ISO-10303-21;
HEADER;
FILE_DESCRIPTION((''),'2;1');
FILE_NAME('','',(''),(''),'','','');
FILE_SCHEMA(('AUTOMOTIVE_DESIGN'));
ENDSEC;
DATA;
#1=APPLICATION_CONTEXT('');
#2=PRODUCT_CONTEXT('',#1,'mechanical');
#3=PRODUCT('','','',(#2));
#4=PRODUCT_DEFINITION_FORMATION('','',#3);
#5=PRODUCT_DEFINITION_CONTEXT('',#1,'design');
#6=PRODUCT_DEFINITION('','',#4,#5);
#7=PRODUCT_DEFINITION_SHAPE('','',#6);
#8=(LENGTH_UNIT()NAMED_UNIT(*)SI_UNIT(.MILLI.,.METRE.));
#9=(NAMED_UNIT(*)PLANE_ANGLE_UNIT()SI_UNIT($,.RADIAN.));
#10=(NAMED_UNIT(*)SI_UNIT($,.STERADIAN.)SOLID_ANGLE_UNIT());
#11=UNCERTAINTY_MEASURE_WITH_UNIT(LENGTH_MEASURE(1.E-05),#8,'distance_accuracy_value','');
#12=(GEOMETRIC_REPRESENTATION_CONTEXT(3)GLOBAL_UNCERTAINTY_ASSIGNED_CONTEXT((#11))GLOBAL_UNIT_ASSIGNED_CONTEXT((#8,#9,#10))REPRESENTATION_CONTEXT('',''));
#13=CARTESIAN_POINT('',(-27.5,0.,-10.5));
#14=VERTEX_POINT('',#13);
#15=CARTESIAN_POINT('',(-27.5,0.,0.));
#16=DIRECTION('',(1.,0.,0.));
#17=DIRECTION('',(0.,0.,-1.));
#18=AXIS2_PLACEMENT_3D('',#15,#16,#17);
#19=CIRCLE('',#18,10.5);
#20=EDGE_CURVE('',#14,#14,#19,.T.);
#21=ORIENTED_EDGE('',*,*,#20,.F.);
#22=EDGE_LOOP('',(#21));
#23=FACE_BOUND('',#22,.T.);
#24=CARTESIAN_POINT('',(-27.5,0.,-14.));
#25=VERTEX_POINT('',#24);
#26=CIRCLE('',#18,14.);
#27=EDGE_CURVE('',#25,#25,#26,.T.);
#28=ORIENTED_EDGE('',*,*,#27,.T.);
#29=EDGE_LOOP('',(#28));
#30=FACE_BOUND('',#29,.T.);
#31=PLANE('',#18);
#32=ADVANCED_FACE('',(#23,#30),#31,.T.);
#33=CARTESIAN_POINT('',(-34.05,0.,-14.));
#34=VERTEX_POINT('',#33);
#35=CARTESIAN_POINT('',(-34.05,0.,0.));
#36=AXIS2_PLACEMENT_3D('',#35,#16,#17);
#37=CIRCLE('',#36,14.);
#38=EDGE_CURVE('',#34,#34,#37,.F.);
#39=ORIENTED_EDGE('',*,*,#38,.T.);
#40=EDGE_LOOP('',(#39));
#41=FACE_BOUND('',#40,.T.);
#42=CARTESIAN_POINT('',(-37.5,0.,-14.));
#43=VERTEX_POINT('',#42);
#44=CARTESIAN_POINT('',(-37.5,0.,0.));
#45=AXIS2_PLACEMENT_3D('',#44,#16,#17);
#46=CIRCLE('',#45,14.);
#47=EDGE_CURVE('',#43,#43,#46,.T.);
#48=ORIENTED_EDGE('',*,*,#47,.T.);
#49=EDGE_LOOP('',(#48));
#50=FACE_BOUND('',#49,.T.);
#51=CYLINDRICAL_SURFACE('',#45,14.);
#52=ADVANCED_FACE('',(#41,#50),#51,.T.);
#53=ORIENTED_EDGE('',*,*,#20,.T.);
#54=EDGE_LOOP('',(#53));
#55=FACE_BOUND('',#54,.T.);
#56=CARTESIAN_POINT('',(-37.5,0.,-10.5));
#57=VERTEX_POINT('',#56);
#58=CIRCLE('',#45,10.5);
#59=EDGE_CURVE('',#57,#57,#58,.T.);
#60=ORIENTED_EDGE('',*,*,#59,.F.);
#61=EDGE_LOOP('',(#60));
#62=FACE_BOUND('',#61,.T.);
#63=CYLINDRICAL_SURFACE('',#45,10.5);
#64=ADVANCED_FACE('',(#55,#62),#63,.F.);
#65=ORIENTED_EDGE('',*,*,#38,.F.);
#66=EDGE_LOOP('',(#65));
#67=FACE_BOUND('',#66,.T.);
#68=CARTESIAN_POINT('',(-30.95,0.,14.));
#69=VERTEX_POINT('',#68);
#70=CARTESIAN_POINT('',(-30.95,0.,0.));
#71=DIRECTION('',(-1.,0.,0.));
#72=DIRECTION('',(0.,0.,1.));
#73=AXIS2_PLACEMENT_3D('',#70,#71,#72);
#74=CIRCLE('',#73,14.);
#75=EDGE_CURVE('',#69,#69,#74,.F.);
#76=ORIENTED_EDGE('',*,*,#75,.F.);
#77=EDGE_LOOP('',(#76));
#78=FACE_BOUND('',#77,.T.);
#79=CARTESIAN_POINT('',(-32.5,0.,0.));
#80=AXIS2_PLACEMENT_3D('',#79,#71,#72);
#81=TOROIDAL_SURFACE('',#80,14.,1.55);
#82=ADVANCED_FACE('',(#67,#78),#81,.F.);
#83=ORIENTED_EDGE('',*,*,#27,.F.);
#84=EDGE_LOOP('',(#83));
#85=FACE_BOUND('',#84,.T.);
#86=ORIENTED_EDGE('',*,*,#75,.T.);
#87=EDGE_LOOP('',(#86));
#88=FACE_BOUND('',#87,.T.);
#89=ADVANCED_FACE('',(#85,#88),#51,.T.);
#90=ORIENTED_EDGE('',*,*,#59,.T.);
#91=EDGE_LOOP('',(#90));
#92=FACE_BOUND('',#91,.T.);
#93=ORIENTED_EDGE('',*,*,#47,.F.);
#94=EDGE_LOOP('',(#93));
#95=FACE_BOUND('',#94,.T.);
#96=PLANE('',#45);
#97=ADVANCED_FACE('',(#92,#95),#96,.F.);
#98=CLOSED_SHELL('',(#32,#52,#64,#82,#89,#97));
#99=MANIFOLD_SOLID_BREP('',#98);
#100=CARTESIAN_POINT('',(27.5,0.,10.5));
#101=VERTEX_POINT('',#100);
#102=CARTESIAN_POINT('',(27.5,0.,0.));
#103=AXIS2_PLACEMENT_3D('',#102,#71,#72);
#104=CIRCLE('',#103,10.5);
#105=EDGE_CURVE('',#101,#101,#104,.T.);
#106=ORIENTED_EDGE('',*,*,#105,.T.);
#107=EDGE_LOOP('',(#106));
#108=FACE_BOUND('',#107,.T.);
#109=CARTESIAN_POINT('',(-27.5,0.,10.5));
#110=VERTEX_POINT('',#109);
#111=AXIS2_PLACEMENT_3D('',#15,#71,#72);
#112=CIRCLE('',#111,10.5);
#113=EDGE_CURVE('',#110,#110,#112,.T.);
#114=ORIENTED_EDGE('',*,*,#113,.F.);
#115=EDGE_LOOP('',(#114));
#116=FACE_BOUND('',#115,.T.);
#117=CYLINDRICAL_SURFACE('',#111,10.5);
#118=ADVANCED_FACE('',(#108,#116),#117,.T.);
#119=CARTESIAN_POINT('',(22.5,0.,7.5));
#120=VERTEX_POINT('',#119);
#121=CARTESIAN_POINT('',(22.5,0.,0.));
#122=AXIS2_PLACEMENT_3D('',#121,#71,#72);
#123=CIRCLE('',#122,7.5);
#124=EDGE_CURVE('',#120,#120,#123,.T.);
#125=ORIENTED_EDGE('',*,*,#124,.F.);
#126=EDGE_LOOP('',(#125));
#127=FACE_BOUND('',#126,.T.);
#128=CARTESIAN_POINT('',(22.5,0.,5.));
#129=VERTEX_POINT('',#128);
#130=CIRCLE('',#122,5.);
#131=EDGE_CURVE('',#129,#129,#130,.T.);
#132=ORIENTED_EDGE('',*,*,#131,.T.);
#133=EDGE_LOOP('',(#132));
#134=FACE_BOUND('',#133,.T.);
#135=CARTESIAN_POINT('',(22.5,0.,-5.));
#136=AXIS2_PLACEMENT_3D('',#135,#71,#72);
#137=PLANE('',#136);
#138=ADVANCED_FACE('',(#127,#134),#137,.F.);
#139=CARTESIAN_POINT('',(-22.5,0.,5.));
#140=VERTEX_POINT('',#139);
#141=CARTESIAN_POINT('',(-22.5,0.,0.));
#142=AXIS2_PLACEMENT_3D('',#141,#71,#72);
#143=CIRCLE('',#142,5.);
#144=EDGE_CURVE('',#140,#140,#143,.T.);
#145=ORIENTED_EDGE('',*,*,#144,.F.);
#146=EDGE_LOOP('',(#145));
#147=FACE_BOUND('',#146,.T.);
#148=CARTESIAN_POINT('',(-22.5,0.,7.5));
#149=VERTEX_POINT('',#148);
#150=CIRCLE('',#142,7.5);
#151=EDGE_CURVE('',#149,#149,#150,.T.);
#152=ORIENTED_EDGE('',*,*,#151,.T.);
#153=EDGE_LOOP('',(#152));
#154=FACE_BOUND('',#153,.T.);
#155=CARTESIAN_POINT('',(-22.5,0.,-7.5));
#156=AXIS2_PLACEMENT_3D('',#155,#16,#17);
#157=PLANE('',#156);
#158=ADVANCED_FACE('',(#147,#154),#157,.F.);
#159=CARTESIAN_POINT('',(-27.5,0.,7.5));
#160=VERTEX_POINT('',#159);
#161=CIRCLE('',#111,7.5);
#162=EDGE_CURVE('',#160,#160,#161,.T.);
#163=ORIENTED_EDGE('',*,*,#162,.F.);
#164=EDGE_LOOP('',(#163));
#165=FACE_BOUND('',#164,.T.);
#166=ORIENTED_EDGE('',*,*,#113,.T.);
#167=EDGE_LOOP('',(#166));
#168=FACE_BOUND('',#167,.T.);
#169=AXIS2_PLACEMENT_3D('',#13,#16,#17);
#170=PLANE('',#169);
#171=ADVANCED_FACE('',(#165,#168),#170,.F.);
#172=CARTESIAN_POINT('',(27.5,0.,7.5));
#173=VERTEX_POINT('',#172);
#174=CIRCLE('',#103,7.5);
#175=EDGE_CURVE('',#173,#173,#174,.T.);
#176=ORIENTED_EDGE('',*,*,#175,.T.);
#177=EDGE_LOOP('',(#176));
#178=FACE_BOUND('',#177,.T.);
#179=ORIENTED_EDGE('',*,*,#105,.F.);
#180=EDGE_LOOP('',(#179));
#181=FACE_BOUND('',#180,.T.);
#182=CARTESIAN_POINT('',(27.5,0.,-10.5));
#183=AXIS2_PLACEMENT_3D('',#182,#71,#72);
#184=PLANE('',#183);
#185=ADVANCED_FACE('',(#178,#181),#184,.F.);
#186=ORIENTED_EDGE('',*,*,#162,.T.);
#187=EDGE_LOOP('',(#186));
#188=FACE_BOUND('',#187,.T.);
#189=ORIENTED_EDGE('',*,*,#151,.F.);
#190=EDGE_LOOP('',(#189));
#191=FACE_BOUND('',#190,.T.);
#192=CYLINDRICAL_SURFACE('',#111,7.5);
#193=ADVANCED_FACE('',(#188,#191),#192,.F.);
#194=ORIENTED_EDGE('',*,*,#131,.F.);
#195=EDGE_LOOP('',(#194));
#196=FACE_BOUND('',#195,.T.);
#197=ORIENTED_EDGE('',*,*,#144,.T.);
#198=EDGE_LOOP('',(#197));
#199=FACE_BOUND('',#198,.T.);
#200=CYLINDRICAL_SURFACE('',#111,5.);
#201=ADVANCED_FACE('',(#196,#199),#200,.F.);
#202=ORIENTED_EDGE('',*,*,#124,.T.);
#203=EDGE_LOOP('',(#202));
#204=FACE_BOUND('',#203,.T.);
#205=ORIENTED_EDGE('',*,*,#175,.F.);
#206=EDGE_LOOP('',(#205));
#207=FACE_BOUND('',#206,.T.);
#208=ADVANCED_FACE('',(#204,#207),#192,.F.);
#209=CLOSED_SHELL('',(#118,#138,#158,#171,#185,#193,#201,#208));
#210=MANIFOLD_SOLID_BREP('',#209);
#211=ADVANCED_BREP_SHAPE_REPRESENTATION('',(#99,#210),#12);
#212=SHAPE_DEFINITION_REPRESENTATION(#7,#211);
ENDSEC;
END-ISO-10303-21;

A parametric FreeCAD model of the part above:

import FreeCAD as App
import Part
import Sketcher
from FreeCAD import Vector
Q = App.Units.Quantity

doc = App.newDocument("Part")
params = doc.addObject("Spreadsheet::Sheet", "Params")
for row, (alias, value) in enumerate([
    ("sketch1_width", "45 mm"),
    ("sketch1_width2", "5 mm"),
    ("sketch1_height", "3 mm"),
    ("sketch1_height2", "2.5 mm"),
    ("revolution_angle", "360 deg"),
    ("sketch2_diameter", "28 mm"),
    ("sketch2_diameter2", "21 mm"),
    ("pad1_length", "10 mm"),
    ("sketch3_diameter", "3.1 mm"),
    ("groove_angle", "360 deg"),
], start=1):
    params.set(f"A{row}", alias)
    params.set(f"B{row}", "=" + value)
    params.setAlias(f"B{row}", alias)

body = doc.addObject("PartDesign::Body", "Body")

sketch1 = doc.addObject("Sketcher::SketchObject", "Sketch")
body.addObject(sketch1)
sketch1.AttachmentSupport = (doc.XZ_Plane, [""])
sketch1.MapMode = "FlatFace"
sketch1.addGeometry([
    Part.LineSegment(Vector(-22.5, -7.5, 0), Vector(-22.5, -5, 0)),
    Part.LineSegment(Vector(-22.5, -5, 0), Vector(22.5, -5, 0)),
    Part.LineSegment(Vector(22.5, -5, 0), Vector(22.5, -7.5, 0)),
    Part.LineSegment(Vector(22.5, -7.5, 0), Vector(27.5, -7.5, 0)),
    Part.LineSegment(Vector(27.5, -7.5, 0), Vector(27.5, -10.5, 0)),
    Part.LineSegment(Vector(27.5, -10.5, 0), Vector(-27.5, -10.5, 0)),
    Part.LineSegment(Vector(-27.5, -10.5, 0), Vector(-27.5, -7.5, 0)),
    Part.LineSegment(Vector(-27.5, -7.5, 0), Vector(-22.5, -7.5, 0)),
], False)
sketch1.addConstraint([
    Sketcher.Constraint("Coincident", 0, 2, 1, 1),
    Sketcher.Constraint("Coincident", 1, 2, 2, 1),
    Sketcher.Constraint("Coincident", 2, 2, 3, 1),
    Sketcher.Constraint("Coincident", 3, 2, 4, 1),
    Sketcher.Constraint("Coincident", 4, 2, 5, 1),
    Sketcher.Constraint("Coincident", 5, 2, 6, 1),
    Sketcher.Constraint("Coincident", 6, 2, 7, 1),
    Sketcher.Constraint("Coincident", 7, 2, 0, 1),
    Sketcher.Constraint("Vertical", 0),
    Sketcher.Constraint("Horizontal", 1),
    Sketcher.Constraint("Vertical", 2),
    Sketcher.Constraint("Horizontal", 3),
    Sketcher.Constraint("Vertical", 4),
    Sketcher.Constraint("Horizontal", 5),
    Sketcher.Constraint("Vertical", 6),
    Sketcher.Constraint("Horizontal", 7),
    Sketcher.Constraint("Symmetric", 3, 2, 6, 2, -2),
    Sketcher.Constraint("Equal", 3, 7),
    Sketcher.Constraint("DistanceX", 1, 1, 1, 2, Q("45 mm")),
    Sketcher.Constraint("DistanceX", 3, 1, 3, 2, Q("5 mm")),
    Sketcher.Constraint("DistanceY", 4, 2, 4, 1, Q("3 mm")),
    Sketcher.Constraint("DistanceY", 0, 1, 0, 2, Q("2.5 mm")),
    Sketcher.Constraint("DistanceY", 0, 2, -1, 1, Q("5 mm")),
])
sketch1.setExpression("Constraints[18]", "Params.sketch1_width")
sketch1.setExpression("Constraints[19]", "Params.sketch1_width2")
sketch1.setExpression("Constraints[20]", "Params.sketch1_height")
sketch1.setExpression("Constraints[21]", "Params.sketch1_height2")
revolution = doc.addObject("PartDesign::Revolution", "Revolution")
body.addObject(revolution)
revolution.Profile = sketch1
revolution.ReferenceAxis = (sketch1, ["H_Axis"])
revolution.setExpression("Angle", "Params.revolution_angle")
body2 = doc.addObject("PartDesign::Body", "Body001")

sketch2 = doc.addObject("Sketcher::SketchObject", "Sketch001")
body2.addObject(sketch2)
sketch2.AttachmentSupport = (doc.getObject("YZ_Plane001"), [""])
sketch2.MapMode = "FlatFace"
sketch2.AttachmentOffset = App.Placement(Vector(0, 0, -27.5), App.Rotation())
sketch2.addGeometry([
    Part.Circle(Vector(0, 0, 0), Vector(0, 0, 1), 14),
    Part.Circle(Vector(0, 0, 0), Vector(0, 0, 1), 10.5),
], False)
sketch2.addConstraint([
    Sketcher.Constraint("Coincident", 0, 3, -1, 1),
    Sketcher.Constraint("Coincident", 1, 3, -1, 1),
    Sketcher.Constraint("Diameter", 0, Q("28 mm")),
    Sketcher.Constraint("Diameter", 1, Q("21 mm")),
])
sketch2.setExpression("Constraints[2]", "Params.sketch2_diameter")
sketch2.setExpression("Constraints[3]", "Params.sketch2_diameter2")
pad1 = doc.addObject("PartDesign::Pad", "Pad")
body2.addObject(pad1)
pad1.Profile = sketch2
pad1.setExpression("Length", "Params.pad1_length")
pad1.Reversed = True

sketch3 = doc.addObject("Sketcher::SketchObject", "Sketch002")
body2.addObject(sketch3)
sketch3.AttachmentSupport = (doc.getObject("XY_Plane001"), [""])
sketch3.MapMode = "FlatFace"
sketch3.addGeometry(Part.Circle(Vector(-32.5, 14, 0), Vector(0, 0, 1), 1.55), False)
sketch3.addConstraint([
    Sketcher.Constraint("Diameter", 0, Q("3.1 mm")),
    Sketcher.Constraint("DistanceY", -1, 1, 0, 3, Q("14 mm")),
    Sketcher.Constraint("DistanceX", 0, 3, -1, 1, Q("32.5 mm")),
])
sketch3.setExpression("Constraints[0]", "Params.sketch3_diameter")
groove = doc.addObject("PartDesign::Groove", "Groove")
body2.addObject(groove)
groove.Profile = sketch3
groove.ReferenceAxis = (sketch3, ["H_Axis"])
groove.setExpression("Angle", "Params.groove_angle")

doc.recompute()
